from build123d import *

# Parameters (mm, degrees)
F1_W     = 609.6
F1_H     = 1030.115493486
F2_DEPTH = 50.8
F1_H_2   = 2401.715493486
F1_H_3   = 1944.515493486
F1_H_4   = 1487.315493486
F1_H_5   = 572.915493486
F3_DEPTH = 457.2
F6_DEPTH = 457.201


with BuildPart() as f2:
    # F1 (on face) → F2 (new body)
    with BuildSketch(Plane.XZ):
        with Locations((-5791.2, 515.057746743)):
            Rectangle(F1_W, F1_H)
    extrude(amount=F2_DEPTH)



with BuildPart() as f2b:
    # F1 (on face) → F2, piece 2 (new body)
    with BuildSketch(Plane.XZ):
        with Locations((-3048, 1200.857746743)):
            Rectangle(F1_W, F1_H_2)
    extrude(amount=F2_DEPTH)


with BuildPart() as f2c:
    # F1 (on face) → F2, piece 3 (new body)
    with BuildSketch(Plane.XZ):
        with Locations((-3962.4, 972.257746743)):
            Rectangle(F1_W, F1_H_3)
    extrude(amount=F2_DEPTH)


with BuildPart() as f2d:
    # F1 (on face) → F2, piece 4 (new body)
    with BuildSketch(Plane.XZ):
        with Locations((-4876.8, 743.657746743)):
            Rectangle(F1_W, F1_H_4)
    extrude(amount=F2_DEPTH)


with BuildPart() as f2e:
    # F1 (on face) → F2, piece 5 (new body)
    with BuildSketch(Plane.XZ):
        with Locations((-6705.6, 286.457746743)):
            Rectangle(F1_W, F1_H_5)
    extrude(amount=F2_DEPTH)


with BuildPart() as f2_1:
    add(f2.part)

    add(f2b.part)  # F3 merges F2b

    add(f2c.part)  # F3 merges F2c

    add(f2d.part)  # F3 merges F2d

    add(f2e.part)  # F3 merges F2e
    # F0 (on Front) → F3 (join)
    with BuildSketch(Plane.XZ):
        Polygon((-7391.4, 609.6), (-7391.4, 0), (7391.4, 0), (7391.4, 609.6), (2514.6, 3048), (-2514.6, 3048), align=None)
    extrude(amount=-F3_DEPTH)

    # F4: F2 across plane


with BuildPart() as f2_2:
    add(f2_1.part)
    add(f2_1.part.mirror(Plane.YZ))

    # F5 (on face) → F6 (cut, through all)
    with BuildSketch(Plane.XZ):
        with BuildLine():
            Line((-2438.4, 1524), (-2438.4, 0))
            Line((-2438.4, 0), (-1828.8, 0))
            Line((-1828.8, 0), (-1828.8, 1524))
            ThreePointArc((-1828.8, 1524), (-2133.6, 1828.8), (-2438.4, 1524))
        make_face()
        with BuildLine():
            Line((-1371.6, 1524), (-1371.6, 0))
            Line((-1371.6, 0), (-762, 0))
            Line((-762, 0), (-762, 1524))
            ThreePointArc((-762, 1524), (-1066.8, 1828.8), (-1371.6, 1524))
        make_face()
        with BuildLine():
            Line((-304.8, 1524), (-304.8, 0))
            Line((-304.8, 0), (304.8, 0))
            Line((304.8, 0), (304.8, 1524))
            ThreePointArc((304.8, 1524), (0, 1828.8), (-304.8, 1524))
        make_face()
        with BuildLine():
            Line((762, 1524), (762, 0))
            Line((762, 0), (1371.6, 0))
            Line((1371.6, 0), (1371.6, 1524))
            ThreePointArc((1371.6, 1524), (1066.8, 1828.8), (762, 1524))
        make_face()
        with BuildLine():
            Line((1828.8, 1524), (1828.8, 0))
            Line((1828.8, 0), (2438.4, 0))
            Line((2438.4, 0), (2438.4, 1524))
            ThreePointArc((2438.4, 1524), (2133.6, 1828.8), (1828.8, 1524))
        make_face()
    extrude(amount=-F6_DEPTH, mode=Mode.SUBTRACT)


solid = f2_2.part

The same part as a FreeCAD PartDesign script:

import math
import FreeCAD as App
import Part
import Sketcher
Q = App.Units.Quantity

doc = App.newDocument("Part")
body = doc.addObject("PartDesign::Body", "Body")

sketch1 = body.newObject("Sketcher::SketchObject", "Sketch")
sketch1.AttachmentSupport = (doc.getObject("XZ_Plane"), [""])
sketch1.MapMode = "FlatFace"
sketch1.addGeometry([
    Part.LineSegment(App.Vector(-6096, 1030, 0), App.Vector(-6096, 0, 0)),
    Part.LineSegment(App.Vector(-6096, 0, 0), App.Vector(-5486, 0, 0)),
    Part.LineSegment(App.Vector(-5486, 0, 0), App.Vector(-5486, 1030, 0)),
    Part.LineSegment(App.Vector(-5486, 1030, 0), App.Vector(-6096, 1030, 0)),
], False)
sketch1.addConstraint([
    Sketcher.Constraint("Coincident", 0, 2, 1, 1),
    Sketcher.Constraint("Coincident", 1, 2, 2, 1),
    Sketcher.Constraint("Coincident", 2, 2, 3, 1),
    Sketcher.Constraint("Coincident", 3, 2, 0, 1),
    Sketcher.Constraint("Vertical", 0),
    Sketcher.Constraint("Horizontal", 1),
    Sketcher.Constraint("Vertical", 2),
    Sketcher.Constraint("Horizontal", 3),
    Sketcher.Constraint("PointOnObject", 0, 2, -1),
    Sketcher.Constraint("DistanceX", 1, 1, 1, 2, Q("24 in")),
    Sketcher.Constraint("DistanceX", 0, 2, -1, 1, Q("240 in")),
    Sketcher.Constraint("DistanceY", 0, 2, 0, 1, Q("1030.115493 mm")),
])
pad1 = body.newObject("PartDesign::Pad", "Pad")
pad1.Profile = sketch1
pad1.Length = Q("2 in")
body2 = doc.addObject("PartDesign::Body", "Body001")

sketch2 = body2.newObject("Sketcher::SketchObject", "Sketch001")
sketch2.AttachmentSupport = (doc.getObject("XZ_Plane001"), [""])
sketch2.MapMode = "FlatFace"
sketch2.addGeometry([
    Part.LineSegment(App.Vector(-3353, 2402, 0), App.Vector(-3353, 0, 0)),
    Part.LineSegment(App.Vector(-3353, 0, 0), App.Vector(-2743, 0, 0)),
    Part.LineSegment(App.Vector(-2743, 0, 0), App.Vector(-2743, 2402, 0)),
    Part.LineSegment(App.Vector(-2743, 2402, 0), App.Vector(-3353, 2402, 0)),
], False)
sketch2.addConstraint([
    Sketcher.Constraint("Coincident", 0, 2, 1, 1),
    Sketcher.Constraint("Coincident", 1, 2, 2, 1),
    Sketcher.Constraint("Coincident", 2, 2, 3, 1),
    Sketcher.Constraint("Coincident", 3, 2, 0, 1),
    Sketcher.Constraint("Vertical", 0),
    Sketcher.Constraint("Horizontal", 1),
    Sketcher.Constraint("Vertical", 2),
    Sketcher.Constraint("Horizontal", 3),
    Sketcher.Constraint("PointOnObject", 0, 2, -1),
    Sketcher.Constraint("DistanceX", 1, 1, 1, 2, Q("24 in")),
    Sketcher.Constraint("DistanceX", 0, 2, -1, 1, Q("132 in")),
    Sketcher.Constraint("DistanceY", 0, 2, 0, 1, Q("2401.715493 mm")),
])
pad2 = body2.newObject("PartDesign::Pad", "Pad001")
pad2.Profile = sketch2
pad2.Length = Q("2 in")
body3 = doc.addObject("PartDesign::Body", "Body002")

sketch3 = body3.newObject("Sketcher::SketchObject", "Sketch002")
sketch3.AttachmentSupport = (doc.getObject("XZ_Plane002"), [""])
sketch3.MapMode = "FlatFace"
sketch3.addGeometry([
    Part.LineSegment(App.Vector(-4267, 1945, 0), App.Vector(-4267, 0, 0)),
    Part.LineSegment(App.Vector(-4267, 0, 0), App.Vector(-3658, 0, 0)),
    Part.LineSegment(App.Vector(-3658, 0, 0), App.Vector(-3658, 1945, 0)),
    Part.LineSegment(App.Vector(-3658, 1945, 0), App.Vector(-4267, 1945, 0)),
], False)
sketch3.addConstraint([
    Sketcher.Constraint("Coincident", 0, 2, 1, 1),
    Sketcher.Constraint("Coincident", 1, 2, 2, 1),
    Sketcher.Constraint("Coincident", 2, 2, 3, 1),
    Sketcher.Constraint("Coincident", 3, 2, 0, 1),
    Sketcher.Constraint("Vertical", 0),
    Sketcher.Constraint("Horizontal", 1),
    Sketcher.Constraint("Vertical", 2),
    Sketcher.Constraint("Horizontal", 3),
    Sketcher.Constraint("PointOnObject", 0, 2, -1),
    Sketcher.Constraint("DistanceX", 1, 1, 1, 2, Q("24 in")),
    Sketcher.Constraint("DistanceX", 0, 2, -1, 1, Q("168 in")),
    Sketcher.Constraint("DistanceY", 0, 2, 0, 1, Q("1944.515493 mm")),
])
pad3 = body3.newObject("PartDesign::Pad", "Pad002")
pad3.Profile = sketch3
pad3.Length = Q("2 in")
body4 = doc.addObject("PartDesign::Body", "Body003")

sketch4 = body4.newObject("Sketcher::SketchObject", "Sketch003")
sketch4.AttachmentSupport = (doc.getObject("XZ_Plane003"), [""])
sketch4.MapMode = "FlatFace"
sketch4.addGeometry([
    Part.LineSegment(App.Vector(-5182, 1487, 0), App.Vector(-5182, 0, 0)),
    Part.LineSegment(App.Vector(-5182, 0, 0), App.Vector(-4572, 0, 0)),
    Part.LineSegment(App.Vector(-4572, 0, 0), App.Vector(-4572, 1487, 0)),
    Part.LineSegment(App.Vector(-4572, 1487, 0), App.Vector(-5182, 1487, 0)),
], False)
sketch4.addConstraint([
    Sketcher.Constraint("Coincident", 0, 2, 1, 1),
    Sketcher.Constraint("Coincident", 1, 2, 2, 1),
    Sketcher.Constraint("Coincident", 2, 2, 3, 1),
    Sketcher.Constraint("Coincident", 3, 2, 0, 1),
    Sketcher.Constraint("Vertical", 0),
    Sketcher.Constraint("Horizontal", 1),
    Sketcher.Constraint("Vertical", 2),
    Sketcher.Constraint("Horizontal", 3),
    Sketcher.Constraint("PointOnObject", 0, 2, -1),
    Sketcher.Constraint("DistanceX", 1, 1, 1, 2, Q("24 in")),
    Sketcher.Constraint("DistanceX", 0, 2, -1, 1, Q("204 in")),
    Sketcher.Constraint("DistanceY", 0, 2, 0, 1, Q("1487.315493 mm")),
])
pad4 = body4.newObject("PartDesign::Pad", "Pad003")
pad4.Profile = sketch4
pad4.Length = Q("2 in")
body5 = doc.addObject("PartDesign::Body", "Body004")

sketch5 = body5.newObject("Sketcher::SketchObject", "Sketch004")
sketch5.AttachmentSupport = (doc.getObject("XZ_Plane004"), [""])
sketch5.MapMode = "FlatFace"
sketch5.addGeometry([
    Part.LineSegment(App.Vector(-7010, 573, 0), App.Vector(-7010, 0, 0)),
    Part.LineSegment(App.Vector(-7010, 0, 0), App.Vector(-6401, 0, 0)),
    Part.LineSegment(App.Vector(-6401, 0, 0), App.Vector(-6401, 573, 0)),
    Part.LineSegment(App.Vector(-6401, 573, 0), App.Vector(-7010, 573, 0)),
], False)
sketch5.addConstraint([
    Sketcher.Constraint("Coincident", 0, 2, 1, 1),
    Sketcher.Constraint("Coincident", 1, 2, 2, 1),
    Sketcher.Constraint("Coincident", 2, 2, 3, 1),
    Sketcher.Constraint("Coincident", 3, 2, 0, 1),
    Sketcher.Constraint("Vertical", 0),
    Sketcher.Constraint("Horizontal", 1),
    Sketcher.Constraint("Vertical", 2),
    Sketcher.Constraint("Horizontal", 3),
    Sketcher.Constraint("PointOnObject", 0, 2, -1),
    Sketcher.Constraint("DistanceX", 1, 1, 1, 2, Q("24 in")),
    Sketcher.Constraint("DistanceX", 0, 2, -1, 1, Q("276 in")),
    Sketcher.Constraint("DistanceY", 0, 2, 0, 1, Q("572.915493 mm")),
])
pad5 = body5.newObject("PartDesign::Pad", "Pad004")
pad5.Profile = sketch5
pad5.Length = Q("2 in")
body.AllowCompound = True
doc.recompute()

boolean = body.newObject("PartDesign::Boolean", "Boolean")
boolean.Type = "Fuse"
boolean.addObjects([body2])
doc.recompute()

boolean2 = body.newObject("PartDesign::Boolean", "Boolean001")
boolean2.Type = "Fuse"
boolean2.addObjects([body3])
doc.recompute()

boolean3 = body.newObject("PartDesign::Boolean", "Boolean002")
boolean3.Type = "Fuse"
boolean3.addObjects([body4])
doc.recompute()

boolean4 = body.newObject("PartDesign::Boolean", "Boolean003")
boolean4.Type = "Fuse"
boolean4.addObjects([body5])

sketch6 = body.newObject("Sketcher::SketchObject", "Sketch005")
sketch6.AttachmentSupport = (doc.getObject("XZ_Plane"), [""])
sketch6.MapMode = "FlatFace"
sketch6.addGeometry([
    Part.LineSegment(App.Vector(-7391, 610, 0), App.Vector(-7391, 0, 0)),
    Part.LineSegment(App.Vector(-7391, 0, 0), App.Vector(7391, 0, 0)),
    Part.LineSegment(App.Vector(7391, 0, 0), App.Vector(7391, 610, 0)),
    Part.LineSegment(App.Vector(7391, 610, 0), App.Vector(2515, 3048, 0)),
    Part.LineSegment(App.Vector(2515, 3048, 0), App.Vector(-2515, 3048, 0)),
    Part.LineSegment(App.Vector(-2515, 3048, 0), App.Vector(-7391, 610, 0)),
], False)
sketch6.addConstraint([
    Sketcher.Constraint("Coincident", 0, 2, 1, 1),
    Sketcher.Constraint("Coincident", 1, 2, 2, 1),
    Sketcher.Constraint("Coincident", 2, 2, 3, 1),
    Sketcher.Constraint("Coincident", 3, 2, 4, 1),
    Sketcher.Constraint("Coincident", 4, 2, 5, 1),
    Sketcher.Constraint("Coincident", 5, 2, 0, 1),
    Sketcher.Constraint("Vertical", 0),
    Sketcher.Constraint("Horizontal", 1),
    Sketcher.Constraint("Vertical", 2),
    Sketcher.Constraint("Horizontal", 4),
    Sketcher.Constraint("Symmetric", 0, 2, 1, 2, -1, 1),
    Sketcher.Constraint("Horizontal", 2, 2, 5, 2),
    Sketcher.Constraint("Equal", 3, 5),
    Sketcher.Constraint("DistanceX", 1, 1, 1, 2, Q("582 in")),
    Sketcher.Constraint("DistanceX", 4, 2, 4, 1, Q("198 in")),
    Sketcher.Constraint("DistanceY", 0, 2, 0, 1, Q("24 in")),
    Sketcher.Constraint("DistanceY", -1, 1, 3, 2, Q("120 in")),
])
pad6 = body.newObject("PartDesign::Pad", "Pad005")
pad6.Profile = sketch6
pad6.Length = Q("18 in")
pad6.Reversed = True
body6 = doc.addObject("PartDesign::Body", "Body005")
doc.recompute()

body6.BaseFeature = body
doc.recompute()

mirroring = doc.addObject("Part::Mirroring", "Mirroring")
mirroring.Source = body
mirroring.Base = App.Vector(0, 0, 0)
mirroring.Normal = App.Vector(1, 0, 0)
body7 = doc.addObject("PartDesign::Body", "Body006")
body7.BaseFeature = mirroring
boolean5 = body6.newObject("PartDesign::Boolean", "Boolean004")
boolean5.Type = "Fuse"
boolean5.addObjects([body7])
doc.recompute()

sketch7 = body6.newObject("Sketcher::SketchObject", "Sketch006")
sketch7.AttachmentSupport = (doc.getObject("XZ_Plane005"), [""])
sketch7.MapMode = "FlatFace"
sketch7.addGeometry([
    Part.LineSegment(App.Vector(-2438, 1524, 0), App.Vector(-2438, 0, 0)),
    Part.LineSegment(App.Vector(-2438, 0, 0), App.Vector(-1829, 0, 0)),
    Part.LineSegment(App.Vector(-1829, 0, 0), App.Vector(-1829, 1524, 0)),
    Part.ArcOfCircle(Part.Circle(App.Vector(-2134, 1524, 0), App.Vector(0, 0, 1), 305), math.radians(0), math.radians(180)),
    Part.LineSegment(App.Vector(-1372, 1524, 0), App.Vector(-1372, 0, 0)),
    Part.LineSegment(App.Vector(-1372, 0, 0), App.Vector(-762, 0, 0)),
    Part.LineSegment(App.Vector(-762, 0, 0), App.Vector(-762, 1524, 0)),
    Part.ArcOfCircle(Part.Circle(App.Vector(-1067, 1524, 0), App.Vector(0, 0, 1), 305), math.radians(0), math.radians(180)),
    Part.LineSegment(App.Vector(-305, 1524, 0), App.Vector(-305, 0, 0)),
    Part.LineSegment(App.Vector(-305, 0, 0), App.Vector(305, 0, 0)),
    Part.LineSegment(App.Vector(305, 0, 0), App.Vector(305, 1524, 0)),
    Part.ArcOfCircle(Part.Circle(App.Vector(0, 1524, 0), App.Vector(0, 0, 1), 305), math.radians(0), math.radians(180)),
    Part.LineSegment(App.Vector(762, 1524, 0), App.Vector(762, 0, 0)),
    Part.LineSegment(App.Vector(762, 0, 0), App.Vector(1372, 0, 0)),
    Part.LineSegment(App.Vector(1372, 0, 0), App.Vector(1372, 1524, 0)),
    Part.ArcOfCircle(Part.Circle(App.Vector(1067, 1524, 0), App.Vector(0, 0, 1), 305), math.radians(0), math.radians(180)),
    Part.LineSegment(App.Vector(1829, 1524, 0), App.Vector(1829, 0, 0)),
    Part.LineSegment(App.Vector(1829, 0, 0), App.Vector(2438, 0, 0)),
    Part.LineSegment(App.Vector(2438, 0, 0), App.Vector(2438, 1524, 0)),
    Part.ArcOfCircle(Part.Circle(App.Vector(2134, 1524, 0), App.Vector(0, 0, 1), 305), math.radians(0), math.radians(180)),
], False)
sketch7.addConstraint([
    Sketcher.Constraint("Coincident", 0, 2, 1, 1),
    Sketcher.Constraint("Coincident", 1, 2, 2, 1),
    Sketcher.Constraint("Tangent", 2, 2, 3, 1),
    Sketcher.Constraint("Tangent", 3, 2, 0, 1),
    Sketcher.Constraint("Coincident", 4, 2, 5, 1),
    Sketcher.Constraint("Coincident", 5, 2, 6, 1),
    Sketcher.Constraint("Tangent", 6, 2, 7, 1),
    Sketcher.Constraint("Tangent", 7, 2, 4, 1),
    Sketcher.Constraint("Coincident", 8, 2, 9, 1),
    Sketcher.Constraint("Coincident", 9, 2, 10, 1),
    Sketcher.Constraint("Tangent", 10, 2, 11, 1),
    Sketcher.Constraint("Tangent", 11, 2, 8, 1),
    Sketcher.Constraint("Coincident", 12, 2, 13, 1),
    Sketcher.Constraint("Coincident", 13, 2, 14, 1),
    Sketcher.Constraint("Tangent", 14, 2, 15, 1),
    Sketcher.Constraint("Tangent", 15, 2, 12, 1),
    Sketcher.Constraint("Coincident", 16, 2, 17, 1),
    Sketcher.Constraint("Coincident", 17, 2, 18, 1),
    Sketcher.Constraint("Tangent", 18, 2, 19, 1),
    Sketcher.Constraint("Tangent", 19, 2, 16, 1),
    Sketcher.Constraint("Vertical", 0),
    Sketcher.Constraint("Horizontal", 1),
    Sketcher.Constraint("Vertical", 2),
    Sketcher.Constraint("Vertical", 4),
    Sketcher.Constraint("Horizontal", 5),
    Sketcher.Constraint("Vertical", 6),
    Sketcher.Constraint("Vertical", 8),
    Sketcher.Constraint("Horizontal", 9),
    Sketcher.Constraint("Vertical", 10),
    Sketcher.Constraint("Vertical", 12),
    Sketcher.Constraint("Horizontal", 13),
    Sketcher.Constraint("Vertical", 14),
    Sketcher.Constraint("Vertical", 16),
    Sketcher.Constraint("Horizontal", 17),
    Sketcher.Constraint("Vertical", 18),
    Sketcher.Constraint("Equal", 3, 7),
    Sketcher.Constraint("Equal", 7, 11),
    Sketcher.Constraint("Equal", 11, 15),
    Sketcher.Constraint("Equal", 15, 19),
    Sketcher.Constraint("Symmetric", 8, 2, 9, 2, -1, 1),
    Sketcher.Constraint("Symmetric", 5, 2, 12, 2, -1, 1),
    Sketcher.Constraint("Symmetric", 1, 2, 16, 2, -1, 1),
    Sketcher.Constraint("PointOnObject", 0, 2, -1),
    Sketcher.Constraint("PointOnObject", 4, 2, -1),
    Sketcher.Constraint("Horizontal", 3, 3, 7, 3),
    Sketcher.Constraint("Horizontal", 7, 3, 11, 3),
    Sketcher.Constraint("Horizontal", 11, 3, 15, 3),
    Sketcher.Constraint("Horizontal", 15, 3, 19, 3),
    Sketcher.Constraint("Radius", 3, Q("12 in")),
    Sketcher.Constraint("DistanceY", 0, 2, 0, 1, Q("60 in")),
    Sketcher.Constraint("DistanceX", 3, 3, -1, 1, Q("84 in")),
    Sketcher.Constraint("DistanceX", 7, 3, -1, 1, Q("42 in")),
])
pocket1 = body6.newObject("PartDesign::Pocket", "Pocket")
pocket1.Profile = sketch7
pocket1.Type = "ThroughAll"
mirroring.Visibility = False

doc.recompute()
